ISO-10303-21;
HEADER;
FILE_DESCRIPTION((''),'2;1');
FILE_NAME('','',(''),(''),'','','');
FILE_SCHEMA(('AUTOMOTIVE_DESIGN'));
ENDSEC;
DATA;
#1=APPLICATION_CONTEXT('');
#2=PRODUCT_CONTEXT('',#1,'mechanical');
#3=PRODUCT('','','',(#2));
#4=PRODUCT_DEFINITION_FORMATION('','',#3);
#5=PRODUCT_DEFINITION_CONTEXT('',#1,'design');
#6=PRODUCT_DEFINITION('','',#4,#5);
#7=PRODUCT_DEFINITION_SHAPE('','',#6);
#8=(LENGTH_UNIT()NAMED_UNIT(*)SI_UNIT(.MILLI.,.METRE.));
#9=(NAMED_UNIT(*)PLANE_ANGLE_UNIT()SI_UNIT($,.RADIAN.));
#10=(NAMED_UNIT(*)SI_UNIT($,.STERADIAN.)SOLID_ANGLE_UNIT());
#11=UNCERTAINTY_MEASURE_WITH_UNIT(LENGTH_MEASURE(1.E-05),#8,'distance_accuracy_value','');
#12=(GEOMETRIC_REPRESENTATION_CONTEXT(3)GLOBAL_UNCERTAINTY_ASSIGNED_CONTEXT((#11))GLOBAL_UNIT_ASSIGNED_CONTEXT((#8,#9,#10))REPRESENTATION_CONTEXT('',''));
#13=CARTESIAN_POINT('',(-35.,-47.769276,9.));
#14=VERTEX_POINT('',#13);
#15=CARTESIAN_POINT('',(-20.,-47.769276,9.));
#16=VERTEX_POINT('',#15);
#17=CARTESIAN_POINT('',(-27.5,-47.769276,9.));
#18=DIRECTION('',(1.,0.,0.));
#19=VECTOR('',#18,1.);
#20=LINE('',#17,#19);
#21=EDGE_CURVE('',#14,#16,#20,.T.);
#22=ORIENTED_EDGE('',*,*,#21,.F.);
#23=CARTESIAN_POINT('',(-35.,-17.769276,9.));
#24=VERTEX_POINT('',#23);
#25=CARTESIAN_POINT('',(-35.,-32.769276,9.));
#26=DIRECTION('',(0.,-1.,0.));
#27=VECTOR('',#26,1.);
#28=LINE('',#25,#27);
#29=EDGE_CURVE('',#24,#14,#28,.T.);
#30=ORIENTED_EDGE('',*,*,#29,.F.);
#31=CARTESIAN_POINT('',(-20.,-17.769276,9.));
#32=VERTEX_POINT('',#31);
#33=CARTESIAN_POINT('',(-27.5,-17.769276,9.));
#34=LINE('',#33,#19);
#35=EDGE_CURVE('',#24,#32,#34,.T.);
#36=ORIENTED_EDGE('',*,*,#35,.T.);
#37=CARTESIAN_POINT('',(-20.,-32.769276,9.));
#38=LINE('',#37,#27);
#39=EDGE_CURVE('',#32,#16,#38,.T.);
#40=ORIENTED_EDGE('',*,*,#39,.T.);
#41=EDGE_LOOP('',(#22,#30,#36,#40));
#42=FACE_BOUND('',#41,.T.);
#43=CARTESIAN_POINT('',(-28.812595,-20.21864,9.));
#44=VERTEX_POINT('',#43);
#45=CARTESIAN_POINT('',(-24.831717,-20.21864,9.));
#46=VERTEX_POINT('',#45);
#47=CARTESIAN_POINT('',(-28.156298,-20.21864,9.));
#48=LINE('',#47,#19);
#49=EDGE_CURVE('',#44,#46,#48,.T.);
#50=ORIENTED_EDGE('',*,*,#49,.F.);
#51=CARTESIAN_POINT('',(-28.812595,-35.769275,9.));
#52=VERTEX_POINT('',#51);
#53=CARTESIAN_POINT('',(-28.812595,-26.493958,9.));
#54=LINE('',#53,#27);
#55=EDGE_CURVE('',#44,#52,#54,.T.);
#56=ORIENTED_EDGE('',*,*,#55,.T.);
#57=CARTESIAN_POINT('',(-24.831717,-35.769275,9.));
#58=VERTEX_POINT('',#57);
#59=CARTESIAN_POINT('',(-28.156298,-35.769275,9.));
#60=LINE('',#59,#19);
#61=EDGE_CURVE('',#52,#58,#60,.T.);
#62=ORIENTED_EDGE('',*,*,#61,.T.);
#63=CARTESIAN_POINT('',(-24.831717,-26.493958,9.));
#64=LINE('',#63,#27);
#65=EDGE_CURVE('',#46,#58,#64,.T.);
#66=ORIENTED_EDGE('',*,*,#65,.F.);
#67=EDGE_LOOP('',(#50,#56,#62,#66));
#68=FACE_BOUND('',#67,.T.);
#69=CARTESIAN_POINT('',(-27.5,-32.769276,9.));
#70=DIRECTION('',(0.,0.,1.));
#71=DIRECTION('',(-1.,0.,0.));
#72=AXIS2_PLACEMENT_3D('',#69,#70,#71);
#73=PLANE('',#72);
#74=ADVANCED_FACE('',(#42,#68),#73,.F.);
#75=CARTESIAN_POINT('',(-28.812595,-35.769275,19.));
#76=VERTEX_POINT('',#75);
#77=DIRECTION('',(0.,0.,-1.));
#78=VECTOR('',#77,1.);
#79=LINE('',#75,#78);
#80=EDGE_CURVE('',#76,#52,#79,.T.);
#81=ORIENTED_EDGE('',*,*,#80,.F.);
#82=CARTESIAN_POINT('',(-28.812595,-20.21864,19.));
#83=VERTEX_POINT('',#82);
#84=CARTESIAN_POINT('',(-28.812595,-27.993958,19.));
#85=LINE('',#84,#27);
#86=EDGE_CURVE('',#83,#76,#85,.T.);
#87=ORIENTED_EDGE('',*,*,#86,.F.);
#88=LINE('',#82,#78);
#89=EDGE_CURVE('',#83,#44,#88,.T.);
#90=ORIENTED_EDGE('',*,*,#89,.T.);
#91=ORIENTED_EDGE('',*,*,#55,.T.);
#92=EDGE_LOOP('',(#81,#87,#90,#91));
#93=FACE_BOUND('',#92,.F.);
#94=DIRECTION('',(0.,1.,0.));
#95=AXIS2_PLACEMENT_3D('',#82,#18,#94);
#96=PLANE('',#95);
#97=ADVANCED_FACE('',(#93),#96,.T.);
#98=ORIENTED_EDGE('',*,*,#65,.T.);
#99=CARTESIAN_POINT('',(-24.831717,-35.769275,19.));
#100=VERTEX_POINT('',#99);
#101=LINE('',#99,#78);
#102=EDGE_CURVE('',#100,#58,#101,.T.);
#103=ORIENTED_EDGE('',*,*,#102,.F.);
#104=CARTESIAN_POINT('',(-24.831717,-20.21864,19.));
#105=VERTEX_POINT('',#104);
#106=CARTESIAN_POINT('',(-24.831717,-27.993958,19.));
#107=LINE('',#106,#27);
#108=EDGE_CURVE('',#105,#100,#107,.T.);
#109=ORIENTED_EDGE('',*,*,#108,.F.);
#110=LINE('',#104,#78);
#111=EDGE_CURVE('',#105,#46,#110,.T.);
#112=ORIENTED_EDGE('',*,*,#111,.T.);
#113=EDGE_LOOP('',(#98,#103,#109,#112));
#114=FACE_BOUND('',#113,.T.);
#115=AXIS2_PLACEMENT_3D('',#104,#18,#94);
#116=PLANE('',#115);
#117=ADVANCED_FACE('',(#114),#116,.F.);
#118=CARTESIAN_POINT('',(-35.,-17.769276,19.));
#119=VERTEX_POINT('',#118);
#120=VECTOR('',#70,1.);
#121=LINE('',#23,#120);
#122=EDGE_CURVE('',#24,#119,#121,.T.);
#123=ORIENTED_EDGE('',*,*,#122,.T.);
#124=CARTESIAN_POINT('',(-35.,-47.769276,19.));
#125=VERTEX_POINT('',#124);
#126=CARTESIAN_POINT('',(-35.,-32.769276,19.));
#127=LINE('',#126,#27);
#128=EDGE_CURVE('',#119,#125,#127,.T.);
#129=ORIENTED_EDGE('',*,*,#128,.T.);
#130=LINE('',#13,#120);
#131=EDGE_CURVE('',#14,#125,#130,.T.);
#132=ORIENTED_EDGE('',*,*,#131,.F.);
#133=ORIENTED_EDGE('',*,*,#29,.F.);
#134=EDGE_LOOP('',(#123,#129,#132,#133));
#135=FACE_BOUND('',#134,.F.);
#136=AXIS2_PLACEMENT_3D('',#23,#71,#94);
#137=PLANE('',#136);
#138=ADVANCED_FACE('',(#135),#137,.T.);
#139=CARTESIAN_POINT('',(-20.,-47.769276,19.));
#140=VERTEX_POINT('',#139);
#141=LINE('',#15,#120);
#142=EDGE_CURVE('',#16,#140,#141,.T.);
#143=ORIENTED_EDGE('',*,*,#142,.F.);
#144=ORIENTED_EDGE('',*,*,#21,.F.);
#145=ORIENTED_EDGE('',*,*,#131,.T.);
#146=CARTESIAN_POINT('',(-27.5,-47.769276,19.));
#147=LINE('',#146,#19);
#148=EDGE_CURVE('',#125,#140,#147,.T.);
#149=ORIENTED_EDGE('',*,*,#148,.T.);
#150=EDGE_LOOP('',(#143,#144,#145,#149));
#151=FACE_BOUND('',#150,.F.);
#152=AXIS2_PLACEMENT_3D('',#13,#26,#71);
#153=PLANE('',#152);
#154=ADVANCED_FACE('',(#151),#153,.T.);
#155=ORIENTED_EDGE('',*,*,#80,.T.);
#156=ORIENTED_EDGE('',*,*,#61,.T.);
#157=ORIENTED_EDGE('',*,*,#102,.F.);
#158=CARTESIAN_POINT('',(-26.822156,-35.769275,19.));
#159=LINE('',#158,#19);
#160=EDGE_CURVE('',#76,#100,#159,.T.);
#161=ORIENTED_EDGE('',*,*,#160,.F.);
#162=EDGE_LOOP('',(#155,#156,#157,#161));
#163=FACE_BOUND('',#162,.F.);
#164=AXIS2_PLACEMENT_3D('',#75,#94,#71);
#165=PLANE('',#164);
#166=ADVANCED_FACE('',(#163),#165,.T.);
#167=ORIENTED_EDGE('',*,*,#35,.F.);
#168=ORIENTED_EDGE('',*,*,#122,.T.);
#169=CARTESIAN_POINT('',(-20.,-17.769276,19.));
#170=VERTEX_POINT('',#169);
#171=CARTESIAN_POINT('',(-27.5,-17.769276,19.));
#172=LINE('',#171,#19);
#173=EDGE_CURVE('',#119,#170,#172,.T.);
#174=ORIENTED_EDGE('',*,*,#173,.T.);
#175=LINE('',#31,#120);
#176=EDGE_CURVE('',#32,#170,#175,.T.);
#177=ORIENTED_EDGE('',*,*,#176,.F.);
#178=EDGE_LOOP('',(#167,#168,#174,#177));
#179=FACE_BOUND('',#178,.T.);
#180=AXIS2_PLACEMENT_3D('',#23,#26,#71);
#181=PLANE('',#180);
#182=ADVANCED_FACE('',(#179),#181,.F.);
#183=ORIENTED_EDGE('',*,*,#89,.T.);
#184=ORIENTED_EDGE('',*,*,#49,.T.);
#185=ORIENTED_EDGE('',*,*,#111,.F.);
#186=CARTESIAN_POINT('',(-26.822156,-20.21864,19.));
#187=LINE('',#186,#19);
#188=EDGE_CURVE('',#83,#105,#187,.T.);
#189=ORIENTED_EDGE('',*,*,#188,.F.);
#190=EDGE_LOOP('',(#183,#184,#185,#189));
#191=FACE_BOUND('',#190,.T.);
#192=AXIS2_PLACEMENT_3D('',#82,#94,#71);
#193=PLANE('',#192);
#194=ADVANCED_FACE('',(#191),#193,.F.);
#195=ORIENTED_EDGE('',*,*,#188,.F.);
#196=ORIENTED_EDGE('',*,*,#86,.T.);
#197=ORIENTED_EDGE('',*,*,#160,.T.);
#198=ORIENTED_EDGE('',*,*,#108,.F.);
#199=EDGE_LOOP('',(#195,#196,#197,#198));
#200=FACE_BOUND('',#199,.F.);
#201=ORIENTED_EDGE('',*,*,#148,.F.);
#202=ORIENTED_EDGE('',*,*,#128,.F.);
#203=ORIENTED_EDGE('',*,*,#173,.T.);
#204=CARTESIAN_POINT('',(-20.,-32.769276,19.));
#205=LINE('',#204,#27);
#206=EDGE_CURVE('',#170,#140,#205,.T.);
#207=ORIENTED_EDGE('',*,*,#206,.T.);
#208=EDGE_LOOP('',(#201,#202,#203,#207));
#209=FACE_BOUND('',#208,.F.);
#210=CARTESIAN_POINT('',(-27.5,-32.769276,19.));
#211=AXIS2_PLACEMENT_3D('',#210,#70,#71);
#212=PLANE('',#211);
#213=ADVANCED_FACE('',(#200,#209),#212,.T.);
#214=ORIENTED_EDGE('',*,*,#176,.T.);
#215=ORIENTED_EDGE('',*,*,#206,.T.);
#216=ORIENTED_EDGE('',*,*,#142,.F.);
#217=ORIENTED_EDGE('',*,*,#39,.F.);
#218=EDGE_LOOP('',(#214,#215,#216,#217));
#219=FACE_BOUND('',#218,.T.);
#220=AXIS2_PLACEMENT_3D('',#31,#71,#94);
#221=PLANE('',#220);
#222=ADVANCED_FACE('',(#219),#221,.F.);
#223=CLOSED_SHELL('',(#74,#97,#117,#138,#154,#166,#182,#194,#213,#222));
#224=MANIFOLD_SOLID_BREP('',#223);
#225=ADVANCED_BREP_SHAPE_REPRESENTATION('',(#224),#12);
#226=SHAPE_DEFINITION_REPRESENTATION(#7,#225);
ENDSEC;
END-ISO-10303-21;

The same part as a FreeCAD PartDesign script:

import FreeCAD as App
import Part
import Sketcher

V = App.Vector
Q = App.Units.Quantity


def add_polygon(sketch, points):
    """Adds a closed chain of lines whose ends are joined by coincident constraints."""
    first, n = sketch.GeometryCount, len(points)
    for a, b in zip(points, points[1:] + points[:1]):
        sketch.addGeometry(Part.LineSegment(App.Vector(*a, 0), App.Vector(*b, 0)), False)
    for i in range(n):
        sketch.addConstraint(Sketcher.Constraint("Coincident", first + i, 2, first + (i + 1) % n, 1))

doc = App.newDocument("Part")
body = doc.addObject("PartDesign::Body", "Body")

# Sketch on XY plane
sketch1 = body.newObject("Sketcher::SketchObject", "Sketch")
sketch1.AttachmentSupport = (doc.getObject("XY_Plane"), [""])
sketch1.MapMode = "FlatFace"
sketch1.AttachmentOffset = App.Placement(V(0, 0, 9), App.Rotation())
add_polygon(sketch1, [(-35, 47.769276), (-35, 17.769276), (-20, 17.769276), (-20, 47.769276)])  # lines 0-3
sketch1.addConstraint([
    Sketcher.Constraint("Vertical", 0),
    Sketcher.Constraint("Horizontal", 1),
    Sketcher.Constraint("Vertical", 2),
    Sketcher.Constraint("Horizontal", 3),
    Sketcher.Constraint("DistanceX", 1, 1, 1, 2, Q("15 mm")),
    Sketcher.Constraint("DistanceY", 0, 2, 0, 1, Q("30 mm")),
    Sketcher.Constraint("DistanceX", 0, 2, -1, 1, Q("35 mm")),
    Sketcher.Constraint("DistanceY", -1, 1, 0, 2, Q("17.769276 mm")),
])
pad1 = body.newObject("PartDesign::Pad", "Pad")
pad1.Profile = sketch1
pad1.Length = 10

# Sketch on XY plane
sketch2 = body.newObject("Sketcher::SketchObject", "Sketch001")
sketch2.AttachmentSupport = (doc.getObject("XY_Plane"), [""])
sketch2.MapMode = "FlatFace"
sketch2.AttachmentOffset = App.Placement(V(0, 0, 19), App.Rotation())
add_polygon(sketch2, [(-28.812595, 35.769275), (-28.812595, 20.21864), (-24.831717, 20.21864), (-24.831717, 35.769275)])  # lines 0-3
sketch2.addConstraint([
    Sketcher.Constraint("Vertical", 0),
    Sketcher.Constraint("Horizontal", 1),
    Sketcher.Constraint("Vertical", 2),
    Sketcher.Constraint("Horizontal", 3),
    Sketcher.Constraint("DistanceX", 1, 1, 1, 2, Q("3.980878 mm")),
    Sketcher.Constraint("DistanceY", 0, 2, 0, 1, Q("15.550635 mm")),
    Sketcher.Constraint("DistanceY", -1, 1, 0, 2, Q("20.21864 mm")),
    Sketcher.Constraint("DistanceX", 0, 2, -1, 1, Q("28.812595 mm")),
])
pocket1 = body.newObject("PartDesign::Pocket", "Pocket")
pocket1.Profile = sketch2
pocket1.Type = "ThroughAll"
body2 = doc.addObject("PartDesign::Body", "Body001")
doc.recompute()

mirroring = doc.addObject("Part::Mirroring", "Mirroring")
mirroring.Source = body
mirroring.Base = V(0, 0, 0)
mirroring.Normal = V(0, 1, 0)
body2.BaseFeature = mirroring
doc.recompute()
body.Visibility = False
mirroring.Visibility = False

doc.recompute()
